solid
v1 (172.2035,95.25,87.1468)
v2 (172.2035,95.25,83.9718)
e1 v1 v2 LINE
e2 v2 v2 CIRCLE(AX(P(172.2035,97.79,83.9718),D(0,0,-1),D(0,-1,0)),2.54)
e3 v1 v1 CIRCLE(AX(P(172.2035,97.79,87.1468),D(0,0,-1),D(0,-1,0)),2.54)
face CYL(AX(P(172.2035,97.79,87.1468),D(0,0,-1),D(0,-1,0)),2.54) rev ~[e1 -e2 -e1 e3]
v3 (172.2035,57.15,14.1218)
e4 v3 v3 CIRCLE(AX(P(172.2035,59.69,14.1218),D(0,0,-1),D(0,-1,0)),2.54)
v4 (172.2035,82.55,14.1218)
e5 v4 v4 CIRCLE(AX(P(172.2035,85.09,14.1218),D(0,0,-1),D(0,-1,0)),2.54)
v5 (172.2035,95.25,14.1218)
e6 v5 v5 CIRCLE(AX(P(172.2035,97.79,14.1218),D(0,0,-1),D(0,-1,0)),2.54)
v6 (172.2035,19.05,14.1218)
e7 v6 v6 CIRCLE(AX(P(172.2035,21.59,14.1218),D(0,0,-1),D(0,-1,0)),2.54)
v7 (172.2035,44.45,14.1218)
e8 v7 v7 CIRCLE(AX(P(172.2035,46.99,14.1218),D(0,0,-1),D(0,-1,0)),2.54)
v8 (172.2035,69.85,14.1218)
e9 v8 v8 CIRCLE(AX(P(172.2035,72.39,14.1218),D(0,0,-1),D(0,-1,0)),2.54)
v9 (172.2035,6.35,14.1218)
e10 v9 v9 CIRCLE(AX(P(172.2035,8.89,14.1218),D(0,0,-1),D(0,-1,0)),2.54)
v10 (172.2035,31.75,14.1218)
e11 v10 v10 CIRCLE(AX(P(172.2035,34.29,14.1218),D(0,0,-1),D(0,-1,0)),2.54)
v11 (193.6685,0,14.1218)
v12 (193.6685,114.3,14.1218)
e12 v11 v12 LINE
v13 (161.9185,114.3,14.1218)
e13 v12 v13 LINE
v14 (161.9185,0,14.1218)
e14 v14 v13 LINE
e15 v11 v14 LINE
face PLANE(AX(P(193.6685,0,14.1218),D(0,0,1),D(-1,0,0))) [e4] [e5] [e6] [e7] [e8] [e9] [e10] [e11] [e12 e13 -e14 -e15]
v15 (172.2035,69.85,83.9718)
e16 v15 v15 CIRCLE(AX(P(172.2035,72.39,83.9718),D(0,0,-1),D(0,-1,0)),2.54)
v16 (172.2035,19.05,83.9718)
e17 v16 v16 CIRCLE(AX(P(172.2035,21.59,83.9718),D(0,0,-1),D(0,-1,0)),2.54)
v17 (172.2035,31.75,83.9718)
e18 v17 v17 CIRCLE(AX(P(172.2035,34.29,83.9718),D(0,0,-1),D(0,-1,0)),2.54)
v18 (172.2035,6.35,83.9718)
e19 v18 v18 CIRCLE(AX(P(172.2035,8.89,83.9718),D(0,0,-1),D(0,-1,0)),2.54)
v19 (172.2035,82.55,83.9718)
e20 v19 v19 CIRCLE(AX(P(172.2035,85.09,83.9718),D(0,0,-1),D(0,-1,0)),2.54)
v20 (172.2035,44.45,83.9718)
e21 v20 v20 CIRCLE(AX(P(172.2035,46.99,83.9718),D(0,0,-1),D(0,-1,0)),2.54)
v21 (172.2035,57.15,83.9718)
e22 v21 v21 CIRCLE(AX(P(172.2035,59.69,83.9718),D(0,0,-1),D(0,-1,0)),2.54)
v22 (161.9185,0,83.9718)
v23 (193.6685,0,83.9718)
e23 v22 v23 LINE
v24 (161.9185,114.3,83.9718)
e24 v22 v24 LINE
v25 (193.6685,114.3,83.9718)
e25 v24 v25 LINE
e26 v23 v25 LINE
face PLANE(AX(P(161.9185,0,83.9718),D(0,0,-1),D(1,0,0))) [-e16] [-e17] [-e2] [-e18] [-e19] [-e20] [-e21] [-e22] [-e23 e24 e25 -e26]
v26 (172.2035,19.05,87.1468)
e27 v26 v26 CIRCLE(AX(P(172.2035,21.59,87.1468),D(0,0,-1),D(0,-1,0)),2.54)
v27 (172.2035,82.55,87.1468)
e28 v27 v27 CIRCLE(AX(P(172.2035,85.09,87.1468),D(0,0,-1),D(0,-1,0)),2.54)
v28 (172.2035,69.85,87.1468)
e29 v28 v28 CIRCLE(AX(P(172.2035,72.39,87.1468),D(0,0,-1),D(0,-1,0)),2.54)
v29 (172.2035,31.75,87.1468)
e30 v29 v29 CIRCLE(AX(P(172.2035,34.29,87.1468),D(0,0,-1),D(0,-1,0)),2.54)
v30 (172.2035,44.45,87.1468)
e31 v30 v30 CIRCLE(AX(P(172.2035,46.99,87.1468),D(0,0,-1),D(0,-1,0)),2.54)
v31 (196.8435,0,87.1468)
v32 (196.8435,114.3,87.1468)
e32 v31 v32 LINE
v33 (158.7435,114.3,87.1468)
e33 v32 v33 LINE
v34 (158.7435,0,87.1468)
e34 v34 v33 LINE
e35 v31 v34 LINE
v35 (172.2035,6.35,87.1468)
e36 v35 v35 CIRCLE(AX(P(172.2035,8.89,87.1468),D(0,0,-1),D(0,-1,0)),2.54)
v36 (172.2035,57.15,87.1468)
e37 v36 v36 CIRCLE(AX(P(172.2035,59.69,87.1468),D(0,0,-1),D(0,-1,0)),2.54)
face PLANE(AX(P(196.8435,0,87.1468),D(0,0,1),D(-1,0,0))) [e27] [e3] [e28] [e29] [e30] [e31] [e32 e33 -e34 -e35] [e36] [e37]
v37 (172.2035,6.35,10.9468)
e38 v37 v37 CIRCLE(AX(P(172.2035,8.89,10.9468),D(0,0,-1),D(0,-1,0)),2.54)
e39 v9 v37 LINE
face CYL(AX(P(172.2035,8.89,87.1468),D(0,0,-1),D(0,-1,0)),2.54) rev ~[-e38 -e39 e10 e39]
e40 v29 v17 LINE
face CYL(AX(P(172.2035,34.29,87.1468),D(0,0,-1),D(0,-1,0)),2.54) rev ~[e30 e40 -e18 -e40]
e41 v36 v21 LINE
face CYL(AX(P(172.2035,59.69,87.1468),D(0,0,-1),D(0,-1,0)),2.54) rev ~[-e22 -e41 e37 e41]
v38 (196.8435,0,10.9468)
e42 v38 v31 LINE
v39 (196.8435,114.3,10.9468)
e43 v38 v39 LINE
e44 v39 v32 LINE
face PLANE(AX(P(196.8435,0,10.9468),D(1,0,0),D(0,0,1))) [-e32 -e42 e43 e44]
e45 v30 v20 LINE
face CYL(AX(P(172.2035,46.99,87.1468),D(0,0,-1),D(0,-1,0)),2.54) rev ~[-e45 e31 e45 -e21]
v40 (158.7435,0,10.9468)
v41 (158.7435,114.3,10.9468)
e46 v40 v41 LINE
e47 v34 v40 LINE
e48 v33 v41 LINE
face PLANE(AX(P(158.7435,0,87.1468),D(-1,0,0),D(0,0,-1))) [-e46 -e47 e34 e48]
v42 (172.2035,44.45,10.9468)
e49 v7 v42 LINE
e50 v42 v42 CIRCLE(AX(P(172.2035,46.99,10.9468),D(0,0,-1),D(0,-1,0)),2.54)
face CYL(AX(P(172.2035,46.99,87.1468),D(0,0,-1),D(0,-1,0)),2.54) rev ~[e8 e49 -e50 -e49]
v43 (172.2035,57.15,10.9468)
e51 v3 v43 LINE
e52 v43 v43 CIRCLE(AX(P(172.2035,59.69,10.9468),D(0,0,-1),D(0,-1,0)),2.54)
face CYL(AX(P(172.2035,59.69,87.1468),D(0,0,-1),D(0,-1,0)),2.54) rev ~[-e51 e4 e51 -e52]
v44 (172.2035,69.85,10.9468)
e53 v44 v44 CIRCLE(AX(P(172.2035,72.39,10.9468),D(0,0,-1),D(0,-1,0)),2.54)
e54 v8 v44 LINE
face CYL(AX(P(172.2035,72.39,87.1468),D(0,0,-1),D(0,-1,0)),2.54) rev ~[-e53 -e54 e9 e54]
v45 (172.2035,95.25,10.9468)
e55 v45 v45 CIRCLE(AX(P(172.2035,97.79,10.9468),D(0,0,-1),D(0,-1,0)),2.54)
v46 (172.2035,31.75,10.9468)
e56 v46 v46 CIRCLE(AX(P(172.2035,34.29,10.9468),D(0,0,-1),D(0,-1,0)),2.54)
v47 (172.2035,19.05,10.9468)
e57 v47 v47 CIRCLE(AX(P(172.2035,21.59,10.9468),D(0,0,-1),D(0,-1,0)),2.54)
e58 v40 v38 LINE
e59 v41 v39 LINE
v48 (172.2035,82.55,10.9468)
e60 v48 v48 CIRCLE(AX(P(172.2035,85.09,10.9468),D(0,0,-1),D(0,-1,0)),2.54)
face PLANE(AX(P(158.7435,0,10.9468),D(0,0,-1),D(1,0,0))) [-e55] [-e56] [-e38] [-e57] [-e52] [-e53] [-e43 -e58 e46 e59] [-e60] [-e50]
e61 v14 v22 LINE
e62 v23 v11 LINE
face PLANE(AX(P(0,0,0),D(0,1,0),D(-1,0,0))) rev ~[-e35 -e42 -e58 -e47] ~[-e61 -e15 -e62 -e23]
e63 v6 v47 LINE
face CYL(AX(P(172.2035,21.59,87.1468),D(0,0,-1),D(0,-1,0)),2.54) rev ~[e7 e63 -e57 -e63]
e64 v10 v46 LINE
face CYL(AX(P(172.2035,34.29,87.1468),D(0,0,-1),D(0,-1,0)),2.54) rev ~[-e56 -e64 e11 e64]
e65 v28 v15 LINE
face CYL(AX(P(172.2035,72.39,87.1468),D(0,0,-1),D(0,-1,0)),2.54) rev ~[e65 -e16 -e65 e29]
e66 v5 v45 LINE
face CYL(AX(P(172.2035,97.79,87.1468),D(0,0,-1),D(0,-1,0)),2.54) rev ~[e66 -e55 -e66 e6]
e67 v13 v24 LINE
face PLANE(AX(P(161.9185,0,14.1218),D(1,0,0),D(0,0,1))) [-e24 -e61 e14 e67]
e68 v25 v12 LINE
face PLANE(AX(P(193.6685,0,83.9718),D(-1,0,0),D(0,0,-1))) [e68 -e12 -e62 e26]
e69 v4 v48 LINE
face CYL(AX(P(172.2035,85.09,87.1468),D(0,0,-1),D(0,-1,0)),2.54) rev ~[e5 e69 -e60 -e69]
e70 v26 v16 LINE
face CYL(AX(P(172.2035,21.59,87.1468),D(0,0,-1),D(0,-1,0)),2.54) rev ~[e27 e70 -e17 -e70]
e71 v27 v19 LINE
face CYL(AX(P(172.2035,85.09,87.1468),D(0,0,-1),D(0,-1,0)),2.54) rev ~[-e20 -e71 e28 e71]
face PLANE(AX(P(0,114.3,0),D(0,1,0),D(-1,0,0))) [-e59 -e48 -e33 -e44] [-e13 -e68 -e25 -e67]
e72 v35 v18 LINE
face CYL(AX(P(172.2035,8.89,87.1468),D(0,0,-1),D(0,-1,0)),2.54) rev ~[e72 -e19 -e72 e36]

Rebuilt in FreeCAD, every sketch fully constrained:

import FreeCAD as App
import Part
import Sketcher

V = App.Vector
Q = App.Units.Quantity


def add_polygon(sketch, points):
    """Adds a closed chain of lines whose ends are joined by coincident constraints."""
    first, n = sketch.GeometryCount, len(points)
    for a, b in zip(points, points[1:] + points[:1]):
        sketch.addGeometry(Part.LineSegment(App.Vector(*a, 0), App.Vector(*b, 0)), False)
    for i in range(n):
        sketch.addConstraint(Sketcher.Constraint("Coincident", first + i, 2, first + (i + 1) % n, 1))

doc = App.newDocument("Part")
params = doc.addObject("Spreadsheet::Sheet", "Params")
for row, (alias, value) in enumerate([
    ("sketch1_height", "3 in"),
    ("sketch1_width", "1.5 in"),
    ("pad1_length", "4.5 in"),
    ("sketch2_diameter", "0.2 in"),
    ("hole_diameter", "0.2 in"),
], start=1):
    params.set(f"A{row}", alias)
    params.set(f"B{row}", "=" + value)
    params.setAlias(f"B{row}", alias)

body = doc.addObject("PartDesign::Body", "Body")

# Sketch on XZ plane
sketch1 = doc.addObject("Sketcher::SketchObject", "Sketch")
body.addObject(sketch1)
sketch1.AttachmentSupport = (doc.XZ_Plane, [""])
sketch1.MapMode = "FlatFace"
add_polygon(sketch1, [(197, 11), (159, 11), (159, 87), (197, 87)])  # lines 0-3
add_polygon(sketch1, [(194, 84), (162, 84), (162, 14), (194, 14)])  # lines 4-7
sketch1.addConstraint(Sketcher.Constraint("Horizontal", 0))
sketch1.addConstraint(Sketcher.Constraint("Vertical", 1))
sketch1.addConstraint(Sketcher.Constraint("Horizontal", 2))
sketch1.addConstraint(Sketcher.Constraint("Vertical", 3))
sketch1.addConstraint(Sketcher.Constraint("Horizontal", 4))
sketch1.addConstraint(Sketcher.Constraint("Vertical", 5))
sketch1.addConstraint(Sketcher.Constraint("Horizontal", 6))
sketch1.addConstraint(Sketcher.Constraint("Vertical", 7))
sketch1.addConstraint(Sketcher.Constraint("DistanceY", 1, 1, 1, 2, Q("3 in")))
sketch1.addConstraint(Sketcher.Constraint("DistanceX", 0, 2, 0, 1, Q("1.5 in")))
sketch1.addConstraint(Sketcher.Constraint("DistanceX", 1, 2, 4, 2, Q("0.125 in")))
sketch1.addConstraint(Sketcher.Constraint("DistanceY", 4, 2, 1, 2, Q("0.125 in")))
sketch1.addConstraint(Sketcher.Constraint("DistanceY", 0, 2, 5, 2, Q("0.125 in")))
sketch1.addConstraint(Sketcher.Constraint("DistanceX", 6, 2, 3, 2, Q("0.125 in")))
sketch1.addConstraint(Sketcher.Constraint("DistanceX", -1, 1, 0, 2, Q("158.7435 mm")))
sketch1.addConstraint(Sketcher.Constraint("DistanceY", -1, 1, 0, 2, Q("10.9468 mm")))
sketch1.setExpression("Constraints[16]", "Params.sketch1_height")
sketch1.setExpression("Constraints[17]", "Params.sketch1_width")
pad1 = doc.addObject("PartDesign::Pad", "Pad")
body.addObject(pad1)
pad1.Profile = sketch1
pad1.setExpression("Length", "Params.pad1_length")
pad1.Reversed = True

# Sketch on XY plane
sketch2 = doc.addObject("Sketcher::SketchObject", "Sketch001")
body.addObject(sketch2)
sketch2.AttachmentSupport = (doc.XY_Plane, [""])
sketch2.MapMode = "FlatFace"
sketch2.AttachmentOffset = App.Placement(V(0, 0, 87.1468), App.Rotation())
sketch2.addGeometry(Part.Circle(V(172.2, 8.9, 0), V(0, 0, 1), 2.5), False)
sketch2.addGeometry(Part.Circle(V(172.2, 21.6, 0), V(0, 0, 1), 2.5), False)
sketch2.addGeometry(Part.Circle(V(172.2, 34.3, 0), V(0, 0, 1), 2.5), False)
sketch2.addGeometry(Part.Circle(V(172.2, 47, 0), V(0, 0, 1), 2.5), False)
sketch2.addGeometry(Part.Circle(V(172.2, 59.7, 0), V(0, 0, 1), 2.5), False)
sketch2.addGeometry(Part.Circle(V(172.2, 72.4, 0), V(0, 0, 1), 2.5), False)
sketch2.addGeometry(Part.Circle(V(172.2, 85.1, 0), V(0, 0, 1), 2.5), False)
sketch2.addGeometry(Part.Circle(V(172.2, 97.8, 0), V(0, 0, 1), 2.5), False)
sketch2.addConstraint(Sketcher.Constraint("Equal", 0, 1))
sketch2.addConstraint(Sketcher.Constraint("Equal", 1, 2))
sketch2.addConstraint(Sketcher.Constraint("Equal", 2, 3))
sketch2.addConstraint(Sketcher.Constraint("Equal", 3, 4))
sketch2.addConstraint(Sketcher.Constraint("Equal", 4, 5))
sketch2.addConstraint(Sketcher.Constraint("Equal", 5, 6))
sketch2.addConstraint(Sketcher.Constraint("Equal", 6, 7))
sketch2.addConstraint(Sketcher.Constraint("Vertical", 0, 3, 1, 3))
sketch2.addConstraint(Sketcher.Constraint("Vertical", 1, 3, 2, 3))
sketch2.addConstraint(Sketcher.Constraint("Vertical", 2, 3, 3, 3))
sketch2.addConstraint(Sketcher.Constraint("Vertical", 3, 3, 4, 3))
sketch2.addConstraint(Sketcher.Constraint("Vertical", 4, 3, 5, 3))
sketch2.addConstraint(Sketcher.Constraint("Vertical", 5, 3, 6, 3))
sketch2.addConstraint(Sketcher.Constraint("Vertical", 6, 3, 7, 3))
sketch2.addConstraint(Sketcher.Constraint("Diameter", 0, Q("0.2 in")))
sketch2.addConstraint(Sketcher.Constraint("DistanceY", 0, 3, 2, 3, Q("1 in")))
sketch2.addConstraint(Sketcher.Constraint("DistanceY", 1, 3, 3, 3, Q("1 in")))
sketch2.addConstraint(Sketcher.Constraint("DistanceY", 2, 3, 4, 3, Q("1 in")))
sketch2.addConstraint(Sketcher.Constraint("DistanceY", 3, 3, 5, 3, Q("1 in")))
sketch2.addConstraint(Sketcher.Constraint("DistanceY", 4, 3, 6, 3, Q("1 in")))
sketch2.addConstraint(Sketcher.Constraint("DistanceY", 5, 3, 7, 3, Q("1 in")))
sketch2.addConstraint(Sketcher.Constraint("DistanceY", 0, 3, 1, 3, Q("0.5 in")))
sketch2.addConstraint(Sketcher.Constraint("DistanceY", -1, 1, 0, 3, Q("0.35 in")))
sketch2.addConstraint(Sketcher.Constraint("DistanceX", -1, 1, 0, 3, Q("172.2035 mm")))
sketch2.setExpression("Constraints[14]", "Params.sketch2_diameter")
doc.recompute()
hole = doc.addObject("PartDesign::Hole", "Hole")
body.addObject(hole)
hole.Profile = sketch2
hole.ThreadType = "None"
hole.setExpression("Diameter", "Params.hole_diameter")
hole.DepthType = "ThroughAll"

doc.recompute()
